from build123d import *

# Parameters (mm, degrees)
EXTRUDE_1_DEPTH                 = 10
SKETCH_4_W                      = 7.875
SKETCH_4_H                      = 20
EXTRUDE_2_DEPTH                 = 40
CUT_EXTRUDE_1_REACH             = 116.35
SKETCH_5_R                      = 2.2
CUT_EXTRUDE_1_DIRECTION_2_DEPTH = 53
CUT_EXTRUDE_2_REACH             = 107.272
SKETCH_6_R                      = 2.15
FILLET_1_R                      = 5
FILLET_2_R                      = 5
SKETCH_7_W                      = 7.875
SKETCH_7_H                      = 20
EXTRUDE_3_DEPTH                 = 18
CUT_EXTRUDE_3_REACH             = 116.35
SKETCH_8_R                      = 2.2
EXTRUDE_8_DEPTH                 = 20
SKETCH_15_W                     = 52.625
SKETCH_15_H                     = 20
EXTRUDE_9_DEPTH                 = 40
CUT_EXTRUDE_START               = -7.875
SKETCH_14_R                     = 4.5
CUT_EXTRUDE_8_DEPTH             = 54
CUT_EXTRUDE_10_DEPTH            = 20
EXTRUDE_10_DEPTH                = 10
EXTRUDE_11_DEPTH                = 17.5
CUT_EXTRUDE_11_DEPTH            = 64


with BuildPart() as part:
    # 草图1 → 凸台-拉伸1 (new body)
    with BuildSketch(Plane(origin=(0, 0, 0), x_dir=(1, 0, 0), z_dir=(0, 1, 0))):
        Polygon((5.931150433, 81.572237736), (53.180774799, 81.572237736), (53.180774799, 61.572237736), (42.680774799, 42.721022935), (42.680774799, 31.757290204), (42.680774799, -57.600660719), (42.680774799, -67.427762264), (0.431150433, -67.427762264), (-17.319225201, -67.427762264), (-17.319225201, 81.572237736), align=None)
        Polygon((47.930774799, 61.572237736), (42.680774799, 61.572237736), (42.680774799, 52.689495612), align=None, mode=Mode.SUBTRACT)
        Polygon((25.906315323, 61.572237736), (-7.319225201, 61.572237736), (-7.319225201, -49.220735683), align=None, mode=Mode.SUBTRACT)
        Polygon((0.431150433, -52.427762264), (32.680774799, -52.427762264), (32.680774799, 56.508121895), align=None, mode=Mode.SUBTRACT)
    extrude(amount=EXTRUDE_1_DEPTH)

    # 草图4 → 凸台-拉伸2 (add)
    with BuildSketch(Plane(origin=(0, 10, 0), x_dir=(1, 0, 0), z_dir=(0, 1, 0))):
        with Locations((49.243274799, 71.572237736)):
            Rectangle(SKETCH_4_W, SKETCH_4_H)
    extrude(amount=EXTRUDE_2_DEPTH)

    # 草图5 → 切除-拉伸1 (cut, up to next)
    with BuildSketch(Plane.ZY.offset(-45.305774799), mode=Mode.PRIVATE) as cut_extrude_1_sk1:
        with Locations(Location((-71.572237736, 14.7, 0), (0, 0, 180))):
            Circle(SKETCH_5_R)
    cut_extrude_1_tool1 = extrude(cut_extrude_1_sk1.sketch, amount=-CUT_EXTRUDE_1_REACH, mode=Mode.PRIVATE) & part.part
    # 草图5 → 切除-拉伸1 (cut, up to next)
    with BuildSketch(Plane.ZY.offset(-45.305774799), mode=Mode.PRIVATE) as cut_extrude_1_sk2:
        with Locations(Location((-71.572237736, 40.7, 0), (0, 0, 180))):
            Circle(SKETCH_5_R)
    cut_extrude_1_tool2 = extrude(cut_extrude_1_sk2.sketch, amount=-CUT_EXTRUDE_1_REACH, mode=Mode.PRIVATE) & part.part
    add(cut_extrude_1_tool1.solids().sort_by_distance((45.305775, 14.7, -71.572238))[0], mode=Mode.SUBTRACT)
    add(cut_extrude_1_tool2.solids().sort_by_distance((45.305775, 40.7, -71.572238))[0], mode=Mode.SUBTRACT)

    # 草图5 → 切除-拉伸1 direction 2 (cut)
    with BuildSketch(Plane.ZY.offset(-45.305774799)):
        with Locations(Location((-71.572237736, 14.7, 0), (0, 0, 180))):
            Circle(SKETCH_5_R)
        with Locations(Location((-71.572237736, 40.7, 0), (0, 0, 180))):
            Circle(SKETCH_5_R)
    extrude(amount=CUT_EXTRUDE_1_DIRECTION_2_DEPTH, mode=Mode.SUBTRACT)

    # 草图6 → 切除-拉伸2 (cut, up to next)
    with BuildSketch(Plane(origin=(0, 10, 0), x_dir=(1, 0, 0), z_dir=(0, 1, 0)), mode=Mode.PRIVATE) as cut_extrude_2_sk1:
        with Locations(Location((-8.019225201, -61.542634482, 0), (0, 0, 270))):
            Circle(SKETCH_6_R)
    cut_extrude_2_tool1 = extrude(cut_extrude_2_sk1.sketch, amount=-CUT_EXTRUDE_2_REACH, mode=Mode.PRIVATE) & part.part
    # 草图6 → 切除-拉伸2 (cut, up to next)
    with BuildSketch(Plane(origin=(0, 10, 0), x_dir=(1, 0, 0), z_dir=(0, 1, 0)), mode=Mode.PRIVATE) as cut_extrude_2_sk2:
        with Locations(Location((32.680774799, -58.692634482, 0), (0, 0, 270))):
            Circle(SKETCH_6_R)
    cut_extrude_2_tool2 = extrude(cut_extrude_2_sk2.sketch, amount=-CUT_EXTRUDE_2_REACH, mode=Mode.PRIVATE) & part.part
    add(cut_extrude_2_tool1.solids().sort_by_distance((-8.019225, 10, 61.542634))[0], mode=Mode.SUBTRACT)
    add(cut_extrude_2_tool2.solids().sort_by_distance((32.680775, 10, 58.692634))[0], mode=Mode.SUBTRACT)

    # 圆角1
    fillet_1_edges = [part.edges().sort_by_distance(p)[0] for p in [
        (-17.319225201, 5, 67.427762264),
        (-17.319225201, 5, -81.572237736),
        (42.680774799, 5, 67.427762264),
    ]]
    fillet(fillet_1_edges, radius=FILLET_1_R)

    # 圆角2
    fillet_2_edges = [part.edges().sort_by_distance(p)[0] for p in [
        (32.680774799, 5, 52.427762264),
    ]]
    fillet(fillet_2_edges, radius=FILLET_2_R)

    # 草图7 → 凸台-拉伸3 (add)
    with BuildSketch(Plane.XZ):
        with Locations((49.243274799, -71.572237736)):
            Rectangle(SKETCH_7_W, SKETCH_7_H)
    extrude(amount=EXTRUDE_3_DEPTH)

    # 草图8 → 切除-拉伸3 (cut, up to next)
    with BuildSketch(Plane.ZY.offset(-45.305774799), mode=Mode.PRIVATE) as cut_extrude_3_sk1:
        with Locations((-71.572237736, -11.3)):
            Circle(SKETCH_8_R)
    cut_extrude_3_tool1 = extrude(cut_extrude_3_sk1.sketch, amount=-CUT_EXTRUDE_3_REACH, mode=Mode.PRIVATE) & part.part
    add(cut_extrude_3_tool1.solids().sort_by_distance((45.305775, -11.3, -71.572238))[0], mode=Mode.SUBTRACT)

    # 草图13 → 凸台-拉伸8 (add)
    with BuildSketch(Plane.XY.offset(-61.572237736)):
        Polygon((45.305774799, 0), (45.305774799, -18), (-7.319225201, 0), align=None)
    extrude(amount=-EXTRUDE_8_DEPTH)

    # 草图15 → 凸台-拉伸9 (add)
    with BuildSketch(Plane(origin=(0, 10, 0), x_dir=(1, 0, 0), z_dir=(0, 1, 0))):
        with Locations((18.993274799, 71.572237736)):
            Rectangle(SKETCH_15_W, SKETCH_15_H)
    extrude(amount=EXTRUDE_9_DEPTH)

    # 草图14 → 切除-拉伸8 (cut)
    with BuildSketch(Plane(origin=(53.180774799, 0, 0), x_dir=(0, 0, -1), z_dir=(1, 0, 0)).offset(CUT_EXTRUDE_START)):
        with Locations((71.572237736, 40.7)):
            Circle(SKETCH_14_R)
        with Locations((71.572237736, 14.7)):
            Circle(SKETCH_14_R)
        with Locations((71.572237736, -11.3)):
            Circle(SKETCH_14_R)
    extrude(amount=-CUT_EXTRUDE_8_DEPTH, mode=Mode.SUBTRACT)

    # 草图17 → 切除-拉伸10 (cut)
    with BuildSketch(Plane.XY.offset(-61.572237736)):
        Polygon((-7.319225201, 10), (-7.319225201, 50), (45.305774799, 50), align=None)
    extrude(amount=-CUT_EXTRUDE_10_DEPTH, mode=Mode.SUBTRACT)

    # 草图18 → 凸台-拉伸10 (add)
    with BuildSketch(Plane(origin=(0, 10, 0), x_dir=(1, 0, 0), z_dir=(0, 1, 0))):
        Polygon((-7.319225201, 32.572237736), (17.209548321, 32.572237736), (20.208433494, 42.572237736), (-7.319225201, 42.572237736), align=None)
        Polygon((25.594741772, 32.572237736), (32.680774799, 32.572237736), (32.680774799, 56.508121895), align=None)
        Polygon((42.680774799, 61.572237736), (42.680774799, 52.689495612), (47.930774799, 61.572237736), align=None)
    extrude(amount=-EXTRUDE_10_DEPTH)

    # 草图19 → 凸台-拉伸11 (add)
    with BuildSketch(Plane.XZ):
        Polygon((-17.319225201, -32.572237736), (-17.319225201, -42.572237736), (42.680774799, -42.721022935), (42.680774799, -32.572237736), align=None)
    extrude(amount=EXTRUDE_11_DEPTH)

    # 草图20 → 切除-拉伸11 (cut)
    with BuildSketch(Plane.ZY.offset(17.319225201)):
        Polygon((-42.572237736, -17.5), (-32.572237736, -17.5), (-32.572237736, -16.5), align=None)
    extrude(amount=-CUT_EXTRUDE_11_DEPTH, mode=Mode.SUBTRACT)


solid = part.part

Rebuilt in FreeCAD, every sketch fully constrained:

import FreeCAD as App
import Part
import Sketcher


def edges_at(feature, points):
    """Names of the edges that pass closest to the given points."""
    edges = feature.Shape.Edges
    near = lambda p: min(range(len(edges)), key=lambda i: edges[i].distToShape(Part.Vertex(*p))[0])
    return sorted({f"Edge{near(p) + 1}" for p in points})


def add_polygon(sketch, points):
    """Adds a closed chain of lines whose ends are joined by coincident constraints."""
    first, n = sketch.GeometryCount, len(points)
    for a, b in zip(points, points[1:] + points[:1]):
        sketch.addGeometry(Part.LineSegment(App.Vector(*a, 0), App.Vector(*b, 0)), False)
    for i in range(n):
        sketch.addConstraint(Sketcher.Constraint("Coincident", first + i, 2, first + (i + 1) % n, 1))

doc = App.newDocument("Part")
params = doc.addObject("Spreadsheet::Sheet", "Params")
for row, (alias, value) in enumerate([
    ("sketch1_width", "60 mm"),
    ("sketch1_height", "149 mm"),
    ("sketch1_height2", "20 mm"),
    ("sketch1_width2", "70.5 mm"),
    ("sketch1_width3", "5.25 mm"),
    ("pad1_length", "10 mm"),
    ("sketch2_height", "20 mm"),
    ("pad2_length", "40 mm"),
    ("sketch3_diameter", "4.4 mm"),
    ("sketch4_diameter", "4.4 mm"),
    ("sketch5_diameter", "4.4 mm"),
    ("pocket3_length", "53 mm"),
    ("sketch6_diameter", "4.3 mm"),
    ("sketch7_diameter", "4.3 mm"),
    ("fillet_radius", "5 mm"),
    ("fillet2_radius", "5 mm"),
    ("sketch8_height", "20 mm"),
    ("pad3_length", "18 mm"),
    ("sketch9_diameter", "4.4 mm"),
    ("sketch10_height", "18 mm"),
    ("pad4_length", "20 mm"),
    ("sketch11_height", "20 mm"),
    ("pad5_length", "40 mm"),
    ("sketch12_diameter", "9 mm"),
    ("pocket7_length", "54 mm"),
    ("sketch13_height", "40 mm"),
    ("pocket8_length", "20 mm"),
    ("sketch14_height", "10 mm"),
    ("sketch14_width", "5.25 mm"),
    ("pad6_length", "10 mm"),
    ("sketch15_width", "60 mm"),
    ("sketch15_height", "10 mm"),
    ("pad7_length", "17.5 mm"),
    ("sketch16_width", "1 mm"),
    ("sketch16_height", "10 mm"),
    ("pocket9_length", "64 mm"),
], start=1):
    params.set(f"A{row}", alias)
    params.set(f"B{row}", "=" + value)
    params.setAlias(f"B{row}", alias)

body = doc.addObject("PartDesign::Body", "Body")

sketch1 = body.newObject("Sketcher::SketchObject", "Sketch")
sketch1.AttachmentSupport = (doc.getObject("XZ_Plane"), [""])
sketch1.MapMode = "FlatFace"
add_polygon(sketch1, [(53, -82), (-17, -82), (-17, 67), (43, 67), (43, -43), (53, -62)])
add_polygon(sketch1, [(0, 52), (33, -57), (33, 52)])
add_polygon(sketch1, [(48, -62), (43, -53), (43, -62)])
add_polygon(sketch1, [(26, -62), (-7, 49), (-7, -62)])
sketch1.addConstraint([
    Sketcher.Constraint("Horizontal", 0),
    Sketcher.Constraint("Vertical", 1),
    Sketcher.Constraint("Horizontal", 2),
    Sketcher.Constraint("Vertical", 3),
    Sketcher.Constraint("Vertical", 5),
    Sketcher.Constraint("Vertical", 7),
    Sketcher.Constraint("Horizontal", 8),
    Sketcher.Constraint("Vertical", 10),
    Sketcher.Constraint("Horizontal", 11),
    Sketcher.Constraint("Vertical", 13),
    Sketcher.Constraint("Horizontal", 14),
    Sketcher.Constraint("Horizontal", 4, 2, 10, 2),
    Sketcher.Constraint("Horizontal", 11, 2, 13, 2),
    Sketcher.Constraint("Vertical", 3, 2, 9, 2),
    Sketcher.Constraint("DistanceX", 2, 1, 2, 2, 60.0),
    Sketcher.Constraint("DistanceY", 1, 1, 1, 2, 149.0),
    Sketcher.Constraint("DistanceY", 5, 2, 5, 1, 20.0),
    Sketcher.Constraint("DistanceX", 0, 2, 0, 1, 70.5),
    Sketcher.Constraint("DistanceX", 6, 2, 3, 2, 10.0),
    Sketcher.Constraint("DistanceY", 7, 2, 2, 2, 15.0),
    Sketcher.Constraint("DistanceX", 1, 2, 12, 2, 10.0),
    Sketcher.Constraint("DistanceX", 11, 1, 11, 2, 5.25),
    Sketcher.Constraint("DistanceX", 14, 1, 14, 2, 33.225541),
    Sketcher.Constraint("DistanceY", 6, 2, 3, 2, 13.787099),
    Sketcher.Constraint("Distance", 4, 21.57819),
    Sketcher.Constraint("Distance", 12, 115.667712),
    Sketcher.Constraint("DistanceX", 8, 2, 8, 1, 32.249624),
    Sketcher.Constraint("DistanceY", 10, 2, 10, 1, 8.882742),
    Sketcher.Constraint("DistanceY", 6, 2, -1, 1, 56.508122),
    Sketcher.Constraint("DistanceX", -1, 1, 8, 2, 0.43115),
])
sketch1.setExpression("Constraints[29]", "Params.sketch1_width")
sketch1.setExpression("Constraints[30]", "Params.sketch1_height")
sketch1.setExpression("Constraints[31]", "Params.sketch1_height2")
sketch1.setExpression("Constraints[32]", "Params.sketch1_width2")
sketch1.setExpression("Constraints[36]", "Params.sketch1_width3")
pad1 = body.newObject("PartDesign::Pad", "Pad")
pad1.Profile = sketch1
pad1.setExpression("Length", "Params.pad1_length")
pad1.Reversed = True

sketch2 = body.newObject("Sketcher::SketchObject", "Sketch001")
sketch2.AttachmentSupport = (doc.getObject("XZ_Plane"), [""])
sketch2.MapMode = "FlatFace"
sketch2.AttachmentOffset = App.Placement(App.Vector(0, 0, -10), App.Rotation())
add_polygon(sketch2, [(45, -82), (45, -62), (53, -62), (53, -82)])
sketch2.addConstraint([
    Sketcher.Constraint("Vertical", 0),
    Sketcher.Constraint("Horizontal", 1),
    Sketcher.Constraint("Vertical", 2),
    Sketcher.Constraint("Horizontal", 3),
    Sketcher.Constraint("DistanceY", 0, 1, 0, 2, 20.0),
    Sketcher.Constraint("DistanceX", 1, 1, 1, 2, 7.875),
    Sketcher.Constraint("DistanceX", -1, 1, 0, 2, 45.305775),
    Sketcher.Constraint("DistanceY", 0, 2, -1, 1, 61.572238),
])
sketch2.setExpression("Constraints[8]", "Params.sketch2_height")
pad2 = body.newObject("PartDesign::Pad", "Pad001")
pad2.Profile = sketch2
pad2.setExpression("Length", "Params.pad2_length")
pad2.Reversed = True

sketch3 = body.newObject("Sketcher::SketchObject", "Sketch002")
sketch3.AttachmentSupport = (doc.getObject("YZ_Plane"), [""])
sketch3.MapMode = "FlatFace"
sketch3.AttachmentOffset = App.Placement(App.Vector(0, 0, 45.305775), App.Rotation())
sketch3.addGeometry(Part.Circle(App.Vector(14.7, -71.6, 0), App.Vector(0, 0, 1), 2.2), False)
sketch3.addConstraint([
    Sketcher.Constraint("Diameter", 0, 4.4),
    Sketcher.Constraint("DistanceX", -1, 1, 0, 3, 14.7),
    Sketcher.Constraint("DistanceY", 0, 3, -1, 1, 71.572238),
])
sketch3.setExpression("Constraints[0]", "Params.sketch3_diameter")
pocket1 = body.newObject("PartDesign::Pocket", "Pocket")
pocket1.Profile = sketch3
pocket1.Type = "UpToFirst"
pocket1.Reversed = True

sketch4 = body.newObject("Sketcher::SketchObject", "Sketch003")
sketch4.AttachmentSupport = (doc.getObject("YZ_Plane"), [""])
sketch4.MapMode = "FlatFace"
sketch4.AttachmentOffset = App.Placement(App.Vector(0, 0, 45.305775), App.Rotation())
sketch4.addGeometry(Part.Circle(App.Vector(40.7, -71.6, 0), App.Vector(0, 0, 1), 2.2), False)
sketch4.addConstraint([
    Sketcher.Constraint("Diameter", 0, 4.4),
    Sketcher.Constraint("DistanceX", -1, 1, 0, 3, 40.7),
    Sketcher.Constraint("DistanceY", 0, 3, -1, 1, 71.572238),
])
sketch4.setExpression("Constraints[0]", "Params.sketch4_diameter")
pocket2 = body.newObject("PartDesign::Pocket", "Pocket001")
pocket2.Profile = sketch4
pocket2.Type = "UpToFirst"
pocket2.Reversed = True

sketch5 = body.newObject("Sketcher::SketchObject", "Sketch004")
sketch5.AttachmentSupport = (doc.getObject("YZ_Plane"), [""])
sketch5.MapMode = "FlatFace"
sketch5.AttachmentOffset = App.Placement(App.Vector(0, 0, 45.305775), App.Rotation())
sketch5.addGeometry([
    Part.Circle(App.Vector(14.7, -71.6, 0), App.Vector(0, 0, 1), 2.2),
    Part.Circle(App.Vector(40.7, -71.6, 0), App.Vector(0, 0, 1), 2.2),
], False)
sketch5.addConstraint([
    Sketcher.Constraint("Equal", 0, 1),
    Sketcher.Constraint("Horizontal", 0, 3, 1, 3),
    Sketcher.Constraint("Diameter", 0, 4.4),
    Sketcher.Constraint("DistanceX", 0, 3, 1, 3, 26.0),
    Sketcher.Constraint("DistanceX", -1, 1, 0, 3, 14.7),
    Sketcher.Constraint("DistanceY", 0, 3, -1, 1, 71.572238),
])
sketch5.setExpression("Constraints[2]", "Params.sketch5_diameter")
pocket3 = body.newObject("PartDesign::Pocket", "Pocket002")
pocket3.Profile = sketch5
pocket3.setExpression("Length", "Params.pocket3_length")

sketch6 = body.newObject("Sketcher::SketchObject", "Sketch005")
sketch6.AttachmentSupport = (doc.getObject("XZ_Plane"), [""])
sketch6.MapMode = "FlatFace"
sketch6.AttachmentOffset = App.Placement(App.Vector(0, 0, -10), App.Rotation())
sketch6.addGeometry(Part.Circle(App.Vector(-8, 61.5, 0), App.Vector(0, 0, 1), 2.1), False)
sketch6.addConstraint([
    Sketcher.Constraint("Diameter", 0, 4.3),
    Sketcher.Constraint("DistanceX", 0, 3, -1, 1, 8.019225),
    Sketcher.Constraint("DistanceY", -1, 1, 0, 3, 61.542634),
])
sketch6.setExpression("Constraints[0]", "Params.sketch6_diameter")
pocket4 = body.newObject("PartDesign::Pocket", "Pocket003")
pocket4.Profile = sketch6
pocket4.Type = "UpToFirst"
pocket4.Reversed = True

sketch7 = body.newObject("Sketcher::SketchObject", "Sketch006")
sketch7.AttachmentSupport = (doc.getObject("XZ_Plane"), [""])
sketch7.MapMode = "FlatFace"
sketch7.AttachmentOffset = App.Placement(App.Vector(0, 0, -10), App.Rotation())
sketch7.addGeometry(Part.Circle(App.Vector(32.7, 58.7, 0), App.Vector(0, 0, 1), 2.1), False)
sketch7.addConstraint([
    Sketcher.Constraint("Diameter", 0, 4.3),
    Sketcher.Constraint("DistanceX", -1, 1, 0, 3, 32.680775),
    Sketcher.Constraint("DistanceY", -1, 1, 0, 3, 58.692634),
])
sketch7.setExpression("Constraints[0]", "Params.sketch7_diameter")
pocket5 = body.newObject("PartDesign::Pocket", "Pocket004")
pocket5.Profile = sketch7
pocket5.Type = "UpToFirst"
pocket5.Reversed = True
doc.recompute()

fillet = body.newObject("PartDesign::Fillet", "Fillet")
fillet.Base = (pocket5, edges_at(pocket5, [(-17.319, 5, 67.428), (-17.319, 5, -81.572), (42.681, 5, 67.428)]))
fillet.setExpression("Radius", "Params.fillet_radius")
doc.recompute()

fillet2 = body.newObject("PartDesign::Fillet", "Fillet001")
fillet2.Base = (fillet, edges_at(fillet, [(32.681, 5, 52.428)]))
fillet2.setExpression("Radius", "Params.fillet2_radius")

sketch8 = body.newObject("Sketcher::SketchObject", "Sketch007")
sketch8.AttachmentSupport = (doc.getObject("XZ_Plane"), [""])
sketch8.MapMode = "FlatFace"
add_polygon(sketch8, [(45, -62), (45, -82), (53, -82), (53, -62)])
sketch8.addConstraint([
    Sketcher.Constraint("Vertical", 0),
    Sketcher.Constraint("Horizontal", 1),
    Sketcher.Constraint("Vertical", 2),
    Sketcher.Constraint("Horizontal", 3),
    Sketcher.Constraint("DistanceY", 0, 2, 0, 1, 20.0),
    Sketcher.Constraint("DistanceX", 1, 1, 1, 2, 7.875),
    Sketcher.Constraint("DistanceX", -1, 1, 0, 2, 45.305775),
    Sketcher.Constraint("DistanceY", 0, 2, -1, 1, 81.572238),
])
sketch8.setExpression("Constraints[8]", "Params.sketch8_height")
pad3 = body.newObject("PartDesign::Pad", "Pad002")
pad3.Profile = sketch8
pad3.setExpression("Length", "Params.pad3_length")

sketch9 = body.newObject("Sketcher::SketchObject", "Sketch008")
sketch9.AttachmentSupport = (doc.getObject("YZ_Plane"), [""])
sketch9.MapMode = "FlatFace"
sketch9.AttachmentOffset = App.Placement(App.Vector(0, 0, 45.305775), App.Rotation())
sketch9.addGeometry(Part.Circle(App.Vector(-11.3, -71.6, 0), App.Vector(0, 0, 1), 2.2), False)
sketch9.addConstraint([
    Sketcher.Constraint("Diameter", 0, 4.4),
    Sketcher.Constraint("DistanceX", 0, 3, -1, 1, 11.3),
    Sketcher.Constraint("DistanceY", 0, 3, -1, 1, 71.572238),
])
sketch9.setExpression("Constraints[0]", "Params.sketch9_diameter")
pocket6 = body.newObject("PartDesign::Pocket", "Pocket005")
pocket6.Profile = sketch9
pocket6.Type = "UpToFirst"
pocket6.Reversed = True

sketch10 = body.newObject("Sketcher::SketchObject", "Sketch009")
sketch10.AttachmentSupport = (doc.getObject("XY_Plane"), [""])
sketch10.MapMode = "FlatFace"
sketch10.AttachmentOffset = App.Placement(App.Vector(0, 0, -61.572238), App.Rotation())
add_polygon(sketch10, [(45, -18), (45, 0), (-7, 0)])
sketch10.addConstraint([
    Sketcher.Constraint("Vertical", 0),
    Sketcher.Constraint("Horizontal", 1),
    Sketcher.Constraint("PointOnObject", 0, 2, -1),
    Sketcher.Constraint("DistanceY", 0, 1, 0, 2, 18.0),
    Sketcher.Constraint("DistanceX", 1, 2, 1, 1, 52.625),
    Sketcher.Constraint("DistanceX", -1, 1, 0, 2, 45.305775),
])
sketch10.setExpression("Constraints[6]", "Params.sketch10_height")
pad4 = body.newObject("PartDesign::Pad", "Pad003")
pad4.Profile = sketch10
pad4.setExpression("Length", "Params.pad4_length")
pad4.Reversed = True

sketch11 = body.newObject("Sketcher::SketchObject", "Sketch010")
sketch11.AttachmentSupport = (doc.getObject("XZ_Plane"), [""])
sketch11.MapMode = "FlatFace"
sketch11.AttachmentOffset = App.Placement(App.Vector(0, 0, -10), App.Rotation())
add_polygon(sketch11, [(-7, -82), (-7, -62), (45, -62), (45, -82)])
sketch11.addConstraint([
    Sketcher.Constraint("Vertical", 0),
    Sketcher.Constraint("Horizontal", 1),
    Sketcher.Constraint("Vertical", 2),
    Sketcher.Constraint("Horizontal", 3),
    Sketcher.Constraint("DistanceY", 0, 1, 0, 2, 20.0),
    Sketcher.Constraint("DistanceX", 1, 1, 1, 2, 52.625),
    Sketcher.Constraint("DistanceX", 0, 2, -1, 1, 7.319225),
    Sketcher.Constraint("DistanceY", 0, 2, -1, 1, 61.572238),
])
sketch11.setExpression("Constraints[8]", "Params.sketch11_height")
pad5 = body.newObject("PartDesign::Pad", "Pad004")
pad5.Profile = sketch11
pad5.setExpression("Length", "Params.pad5_length")
pad5.Reversed = True

sketch12 = body.newObject("Sketcher::SketchObject", "Sketch011")
sketch12.AttachmentSupport = (doc.getObject("YZ_Plane"), [""])
sketch12.MapMode = "FlatFace"
sketch12.AttachmentOffset = App.Placement(App.Vector(0, 0, 45.305775), App.Rotation())
sketch12.addGeometry([
    Part.Circle(App.Vector(40.7, -71.6, 0), App.Vector(0, 0, 1), 4.5),
    Part.Circle(App.Vector(14.7, -71.6, 0), App.Vector(0, 0, 1), 4.5),
    Part.Circle(App.Vector(-11.3, -71.6, 0), App.Vector(0, 0, 1), 4.5),
], False)
sketch12.addConstraint([
    Sketcher.Constraint("Equal", 0, 1),
    Sketcher.Constraint("Equal", 1, 2),
    Sketcher.Constraint("Horizontal", 0, 3, 1, 3),
    Sketcher.Constraint("Horizontal", 1, 3, 2, 3),
    Sketcher.Constraint("Diameter", 0, 9.0),
    Sketcher.Constraint("DistanceX", 1, 3, 0, 3, 26.0),
    Sketcher.Constraint("DistanceX", 2, 3, 1, 3, 26.0),
    Sketcher.Constraint("DistanceX", -1, 1, 0, 3, 40.7),
    Sketcher.Constraint("DistanceY", 0, 3, -1, 1, 71.572238),
])
sketch12.setExpression("Constraints[4]", "Params.sketch12_diameter")
pocket7 = body.newObject("PartDesign::Pocket", "Pocket006")
pocket7.Profile = sketch12
pocket7.setExpression("Length", "Params.pocket7_length")

sketch13 = body.newObject("Sketcher::SketchObject", "Sketch012")
sketch13.AttachmentSupport = (doc.getObject("XY_Plane"), [""])
sketch13.MapMode = "FlatFace"
sketch13.AttachmentOffset = App.Placement(App.Vector(0, 0, -61.572238), App.Rotation())
add_polygon(sketch13, [(-7, 50), (-7, 10), (45, 50)])
sketch13.addConstraint([
    Sketcher.Constraint("Vertical", 0),
    Sketcher.Constraint("Horizontal", 2),
    Sketcher.Constraint("DistanceY", 0, 2, 0, 1, 40.0),
    Sketcher.Constraint("DistanceY", -1, 1, 0, 2, 10.0),
    Sketcher.Constraint("DistanceX", 2, 2, 2, 1, 52.625),
    Sketcher.Constraint("DistanceX", 0, 2, -1, 1, 7.319225),
])
sketch13.setExpression("Constraints[5]", "Params.sketch13_height")
pocket8 = body.newObject("PartDesign::Pocket", "Pocket007")
pocket8.Profile = sketch13
pocket8.setExpression("Length", "Params.pocket8_length")

sketch14 = body.newObject("Sketcher::SketchObject", "Sketch013")
sketch14.AttachmentSupport = (doc.getObject("XZ_Plane"), [""])
sketch14.MapMode = "FlatFace"
sketch14.AttachmentOffset = App.Placement(App.Vector(0, 0, -10), App.Rotation())
add_polygon(sketch14, [(-7, -33), (17, -33), (20, -43), (-7, -43)])
add_polygon(sketch14, [(26, -33), (33, -33), (33, -57)])
add_polygon(sketch14, [(43, -62), (43, -53), (48, -62)])
sketch14.addConstraint([
    Sketcher.Constraint("Horizontal", 0),
    Sketcher.Constraint("Horizontal", 2),
    Sketcher.Constraint("Vertical", 3),
    Sketcher.Constraint("Horizontal", 4),
    Sketcher.Constraint("Vertical", 5),
    Sketcher.Constraint("Vertical", 7),
    Sketcher.Constraint("Horizontal", 9),
    Sketcher.Constraint("Horizontal", 3, 2, 4, 2),
    Sketcher.Constraint("DistanceY", 3, 1, 3, 2, 10.0),
    Sketcher.Constraint("DistanceX", 3, 2, 4, 2, 40.0),
    Sketcher.Constraint("DistanceX", 5, 2, 7, 2, 10.0),
    Sketcher.Constraint("DistanceY", 8, 2, 4, 2, 29.0),
    Sketcher.Constraint("DistanceX", 9, 2, 9, 1, 5.25),
    Sketcher.Constraint("DistanceX", 2, 2, 2, 1, 27.527659),
    Sketcher.Constraint("Distance", 6, 24.962741),
    Sketcher.Constraint("DistanceX", 0, 1, 0, 2, 24.528774),
    Sketcher.Constraint("DistanceX", 4, 1, 4, 2, 7.086033),
    Sketcher.Constraint("DistanceY", 7, 1, 7, 2, 8.882742),
    Sketcher.Constraint("DistanceX", -1, 1, 0, 2, 17.209548),
    Sketcher.Constraint("DistanceY", 5, 2, -1, 1, 56.508122),
])
sketch14.setExpression("Constraints[18]", "Params.sketch14_height")
sketch14.setExpression("Constraints[22]", "Params.sketch14_width")
pad6 = body.newObject("PartDesign::Pad", "Pad005")
pad6.Profile = sketch14
pad6.setExpression("Length", "Params.pad6_length")

sketch15 = body.newObject("Sketcher::SketchObject", "Sketch014")
sketch15.AttachmentSupport = (doc.getObject("XZ_Plane"), [""])
sketch15.MapMode = "FlatFace"
add_polygon(sketch15, [(-17, -33), (-17, -43), (43, -43), (43, -33)])
sketch15.addConstraint([
    Sketcher.Constraint("Vertical", 0),
    Sketcher.Constraint("Vertical", 2),
    Sketcher.Constraint("Horizontal", 3),
    Sketcher.Constraint("DistanceX", 3, 2, 3, 1, 60.0),
    Sketcher.Constraint("DistanceY", 0, 2, 0, 1, 10.0),
    Sketcher.Constraint("DistanceY", 2, 1, 2, 2, 10.148785),
    Sketcher.Constraint("DistanceX", 0, 2, -1, 1, 17.319225),
    Sketcher.Constraint("DistanceY", 0, 2, -1, 1, 42.572238),
])
sketch15.setExpression("Constraints[7]", "Params.sketch15_width")
sketch15.setExpression("Constraints[8]", "Params.sketch15_height")
pad7 = body.newObject("PartDesign::Pad", "Pad006")
pad7.Profile = sketch15
pad7.setExpression("Length", "Params.pad7_length")

sketch16 = body.newObject("Sketcher::SketchObject", "Sketch015")
sketch16.AttachmentSupport = (doc.getObject("YZ_Plane"), [""])
sketch16.MapMode = "FlatFace"
sketch16.AttachmentOffset = App.Placement(App.Vector(0, 0, -17.319225), App.Rotation())
add_polygon(sketch16, [(-17.5, -42.6), (-17.5, -32.6), (-16.5, -32.6)])
sketch16.addConstraint([
    Sketcher.Constraint("Vertical", 0),
    Sketcher.Constraint("Horizontal", 1),
    Sketcher.Constraint("DistanceX", 1, 1, 1, 2, 1.0),
    Sketcher.Constraint("DistanceY", 0, 1, 0, 2, 10.0),
    Sketcher.Constraint("DistanceX", 0, 2, -1, 1, 17.5),
    Sketcher.Constraint("DistanceY", 0, 2, -1, 1, 32.572238),
])
sketch16.setExpression("Constraints[5]", "Params.sketch16_width")
sketch16.setExpression("Constraints[6]", "Params.sketch16_height")
pocket9 = body.newObject("PartDesign::Pocket", "Pocket008")
pocket9.Profile = sketch16
pocket9.setExpression("Length", "Params.pocket9_length")
pocket9.Reversed = True

doc.recompute()
